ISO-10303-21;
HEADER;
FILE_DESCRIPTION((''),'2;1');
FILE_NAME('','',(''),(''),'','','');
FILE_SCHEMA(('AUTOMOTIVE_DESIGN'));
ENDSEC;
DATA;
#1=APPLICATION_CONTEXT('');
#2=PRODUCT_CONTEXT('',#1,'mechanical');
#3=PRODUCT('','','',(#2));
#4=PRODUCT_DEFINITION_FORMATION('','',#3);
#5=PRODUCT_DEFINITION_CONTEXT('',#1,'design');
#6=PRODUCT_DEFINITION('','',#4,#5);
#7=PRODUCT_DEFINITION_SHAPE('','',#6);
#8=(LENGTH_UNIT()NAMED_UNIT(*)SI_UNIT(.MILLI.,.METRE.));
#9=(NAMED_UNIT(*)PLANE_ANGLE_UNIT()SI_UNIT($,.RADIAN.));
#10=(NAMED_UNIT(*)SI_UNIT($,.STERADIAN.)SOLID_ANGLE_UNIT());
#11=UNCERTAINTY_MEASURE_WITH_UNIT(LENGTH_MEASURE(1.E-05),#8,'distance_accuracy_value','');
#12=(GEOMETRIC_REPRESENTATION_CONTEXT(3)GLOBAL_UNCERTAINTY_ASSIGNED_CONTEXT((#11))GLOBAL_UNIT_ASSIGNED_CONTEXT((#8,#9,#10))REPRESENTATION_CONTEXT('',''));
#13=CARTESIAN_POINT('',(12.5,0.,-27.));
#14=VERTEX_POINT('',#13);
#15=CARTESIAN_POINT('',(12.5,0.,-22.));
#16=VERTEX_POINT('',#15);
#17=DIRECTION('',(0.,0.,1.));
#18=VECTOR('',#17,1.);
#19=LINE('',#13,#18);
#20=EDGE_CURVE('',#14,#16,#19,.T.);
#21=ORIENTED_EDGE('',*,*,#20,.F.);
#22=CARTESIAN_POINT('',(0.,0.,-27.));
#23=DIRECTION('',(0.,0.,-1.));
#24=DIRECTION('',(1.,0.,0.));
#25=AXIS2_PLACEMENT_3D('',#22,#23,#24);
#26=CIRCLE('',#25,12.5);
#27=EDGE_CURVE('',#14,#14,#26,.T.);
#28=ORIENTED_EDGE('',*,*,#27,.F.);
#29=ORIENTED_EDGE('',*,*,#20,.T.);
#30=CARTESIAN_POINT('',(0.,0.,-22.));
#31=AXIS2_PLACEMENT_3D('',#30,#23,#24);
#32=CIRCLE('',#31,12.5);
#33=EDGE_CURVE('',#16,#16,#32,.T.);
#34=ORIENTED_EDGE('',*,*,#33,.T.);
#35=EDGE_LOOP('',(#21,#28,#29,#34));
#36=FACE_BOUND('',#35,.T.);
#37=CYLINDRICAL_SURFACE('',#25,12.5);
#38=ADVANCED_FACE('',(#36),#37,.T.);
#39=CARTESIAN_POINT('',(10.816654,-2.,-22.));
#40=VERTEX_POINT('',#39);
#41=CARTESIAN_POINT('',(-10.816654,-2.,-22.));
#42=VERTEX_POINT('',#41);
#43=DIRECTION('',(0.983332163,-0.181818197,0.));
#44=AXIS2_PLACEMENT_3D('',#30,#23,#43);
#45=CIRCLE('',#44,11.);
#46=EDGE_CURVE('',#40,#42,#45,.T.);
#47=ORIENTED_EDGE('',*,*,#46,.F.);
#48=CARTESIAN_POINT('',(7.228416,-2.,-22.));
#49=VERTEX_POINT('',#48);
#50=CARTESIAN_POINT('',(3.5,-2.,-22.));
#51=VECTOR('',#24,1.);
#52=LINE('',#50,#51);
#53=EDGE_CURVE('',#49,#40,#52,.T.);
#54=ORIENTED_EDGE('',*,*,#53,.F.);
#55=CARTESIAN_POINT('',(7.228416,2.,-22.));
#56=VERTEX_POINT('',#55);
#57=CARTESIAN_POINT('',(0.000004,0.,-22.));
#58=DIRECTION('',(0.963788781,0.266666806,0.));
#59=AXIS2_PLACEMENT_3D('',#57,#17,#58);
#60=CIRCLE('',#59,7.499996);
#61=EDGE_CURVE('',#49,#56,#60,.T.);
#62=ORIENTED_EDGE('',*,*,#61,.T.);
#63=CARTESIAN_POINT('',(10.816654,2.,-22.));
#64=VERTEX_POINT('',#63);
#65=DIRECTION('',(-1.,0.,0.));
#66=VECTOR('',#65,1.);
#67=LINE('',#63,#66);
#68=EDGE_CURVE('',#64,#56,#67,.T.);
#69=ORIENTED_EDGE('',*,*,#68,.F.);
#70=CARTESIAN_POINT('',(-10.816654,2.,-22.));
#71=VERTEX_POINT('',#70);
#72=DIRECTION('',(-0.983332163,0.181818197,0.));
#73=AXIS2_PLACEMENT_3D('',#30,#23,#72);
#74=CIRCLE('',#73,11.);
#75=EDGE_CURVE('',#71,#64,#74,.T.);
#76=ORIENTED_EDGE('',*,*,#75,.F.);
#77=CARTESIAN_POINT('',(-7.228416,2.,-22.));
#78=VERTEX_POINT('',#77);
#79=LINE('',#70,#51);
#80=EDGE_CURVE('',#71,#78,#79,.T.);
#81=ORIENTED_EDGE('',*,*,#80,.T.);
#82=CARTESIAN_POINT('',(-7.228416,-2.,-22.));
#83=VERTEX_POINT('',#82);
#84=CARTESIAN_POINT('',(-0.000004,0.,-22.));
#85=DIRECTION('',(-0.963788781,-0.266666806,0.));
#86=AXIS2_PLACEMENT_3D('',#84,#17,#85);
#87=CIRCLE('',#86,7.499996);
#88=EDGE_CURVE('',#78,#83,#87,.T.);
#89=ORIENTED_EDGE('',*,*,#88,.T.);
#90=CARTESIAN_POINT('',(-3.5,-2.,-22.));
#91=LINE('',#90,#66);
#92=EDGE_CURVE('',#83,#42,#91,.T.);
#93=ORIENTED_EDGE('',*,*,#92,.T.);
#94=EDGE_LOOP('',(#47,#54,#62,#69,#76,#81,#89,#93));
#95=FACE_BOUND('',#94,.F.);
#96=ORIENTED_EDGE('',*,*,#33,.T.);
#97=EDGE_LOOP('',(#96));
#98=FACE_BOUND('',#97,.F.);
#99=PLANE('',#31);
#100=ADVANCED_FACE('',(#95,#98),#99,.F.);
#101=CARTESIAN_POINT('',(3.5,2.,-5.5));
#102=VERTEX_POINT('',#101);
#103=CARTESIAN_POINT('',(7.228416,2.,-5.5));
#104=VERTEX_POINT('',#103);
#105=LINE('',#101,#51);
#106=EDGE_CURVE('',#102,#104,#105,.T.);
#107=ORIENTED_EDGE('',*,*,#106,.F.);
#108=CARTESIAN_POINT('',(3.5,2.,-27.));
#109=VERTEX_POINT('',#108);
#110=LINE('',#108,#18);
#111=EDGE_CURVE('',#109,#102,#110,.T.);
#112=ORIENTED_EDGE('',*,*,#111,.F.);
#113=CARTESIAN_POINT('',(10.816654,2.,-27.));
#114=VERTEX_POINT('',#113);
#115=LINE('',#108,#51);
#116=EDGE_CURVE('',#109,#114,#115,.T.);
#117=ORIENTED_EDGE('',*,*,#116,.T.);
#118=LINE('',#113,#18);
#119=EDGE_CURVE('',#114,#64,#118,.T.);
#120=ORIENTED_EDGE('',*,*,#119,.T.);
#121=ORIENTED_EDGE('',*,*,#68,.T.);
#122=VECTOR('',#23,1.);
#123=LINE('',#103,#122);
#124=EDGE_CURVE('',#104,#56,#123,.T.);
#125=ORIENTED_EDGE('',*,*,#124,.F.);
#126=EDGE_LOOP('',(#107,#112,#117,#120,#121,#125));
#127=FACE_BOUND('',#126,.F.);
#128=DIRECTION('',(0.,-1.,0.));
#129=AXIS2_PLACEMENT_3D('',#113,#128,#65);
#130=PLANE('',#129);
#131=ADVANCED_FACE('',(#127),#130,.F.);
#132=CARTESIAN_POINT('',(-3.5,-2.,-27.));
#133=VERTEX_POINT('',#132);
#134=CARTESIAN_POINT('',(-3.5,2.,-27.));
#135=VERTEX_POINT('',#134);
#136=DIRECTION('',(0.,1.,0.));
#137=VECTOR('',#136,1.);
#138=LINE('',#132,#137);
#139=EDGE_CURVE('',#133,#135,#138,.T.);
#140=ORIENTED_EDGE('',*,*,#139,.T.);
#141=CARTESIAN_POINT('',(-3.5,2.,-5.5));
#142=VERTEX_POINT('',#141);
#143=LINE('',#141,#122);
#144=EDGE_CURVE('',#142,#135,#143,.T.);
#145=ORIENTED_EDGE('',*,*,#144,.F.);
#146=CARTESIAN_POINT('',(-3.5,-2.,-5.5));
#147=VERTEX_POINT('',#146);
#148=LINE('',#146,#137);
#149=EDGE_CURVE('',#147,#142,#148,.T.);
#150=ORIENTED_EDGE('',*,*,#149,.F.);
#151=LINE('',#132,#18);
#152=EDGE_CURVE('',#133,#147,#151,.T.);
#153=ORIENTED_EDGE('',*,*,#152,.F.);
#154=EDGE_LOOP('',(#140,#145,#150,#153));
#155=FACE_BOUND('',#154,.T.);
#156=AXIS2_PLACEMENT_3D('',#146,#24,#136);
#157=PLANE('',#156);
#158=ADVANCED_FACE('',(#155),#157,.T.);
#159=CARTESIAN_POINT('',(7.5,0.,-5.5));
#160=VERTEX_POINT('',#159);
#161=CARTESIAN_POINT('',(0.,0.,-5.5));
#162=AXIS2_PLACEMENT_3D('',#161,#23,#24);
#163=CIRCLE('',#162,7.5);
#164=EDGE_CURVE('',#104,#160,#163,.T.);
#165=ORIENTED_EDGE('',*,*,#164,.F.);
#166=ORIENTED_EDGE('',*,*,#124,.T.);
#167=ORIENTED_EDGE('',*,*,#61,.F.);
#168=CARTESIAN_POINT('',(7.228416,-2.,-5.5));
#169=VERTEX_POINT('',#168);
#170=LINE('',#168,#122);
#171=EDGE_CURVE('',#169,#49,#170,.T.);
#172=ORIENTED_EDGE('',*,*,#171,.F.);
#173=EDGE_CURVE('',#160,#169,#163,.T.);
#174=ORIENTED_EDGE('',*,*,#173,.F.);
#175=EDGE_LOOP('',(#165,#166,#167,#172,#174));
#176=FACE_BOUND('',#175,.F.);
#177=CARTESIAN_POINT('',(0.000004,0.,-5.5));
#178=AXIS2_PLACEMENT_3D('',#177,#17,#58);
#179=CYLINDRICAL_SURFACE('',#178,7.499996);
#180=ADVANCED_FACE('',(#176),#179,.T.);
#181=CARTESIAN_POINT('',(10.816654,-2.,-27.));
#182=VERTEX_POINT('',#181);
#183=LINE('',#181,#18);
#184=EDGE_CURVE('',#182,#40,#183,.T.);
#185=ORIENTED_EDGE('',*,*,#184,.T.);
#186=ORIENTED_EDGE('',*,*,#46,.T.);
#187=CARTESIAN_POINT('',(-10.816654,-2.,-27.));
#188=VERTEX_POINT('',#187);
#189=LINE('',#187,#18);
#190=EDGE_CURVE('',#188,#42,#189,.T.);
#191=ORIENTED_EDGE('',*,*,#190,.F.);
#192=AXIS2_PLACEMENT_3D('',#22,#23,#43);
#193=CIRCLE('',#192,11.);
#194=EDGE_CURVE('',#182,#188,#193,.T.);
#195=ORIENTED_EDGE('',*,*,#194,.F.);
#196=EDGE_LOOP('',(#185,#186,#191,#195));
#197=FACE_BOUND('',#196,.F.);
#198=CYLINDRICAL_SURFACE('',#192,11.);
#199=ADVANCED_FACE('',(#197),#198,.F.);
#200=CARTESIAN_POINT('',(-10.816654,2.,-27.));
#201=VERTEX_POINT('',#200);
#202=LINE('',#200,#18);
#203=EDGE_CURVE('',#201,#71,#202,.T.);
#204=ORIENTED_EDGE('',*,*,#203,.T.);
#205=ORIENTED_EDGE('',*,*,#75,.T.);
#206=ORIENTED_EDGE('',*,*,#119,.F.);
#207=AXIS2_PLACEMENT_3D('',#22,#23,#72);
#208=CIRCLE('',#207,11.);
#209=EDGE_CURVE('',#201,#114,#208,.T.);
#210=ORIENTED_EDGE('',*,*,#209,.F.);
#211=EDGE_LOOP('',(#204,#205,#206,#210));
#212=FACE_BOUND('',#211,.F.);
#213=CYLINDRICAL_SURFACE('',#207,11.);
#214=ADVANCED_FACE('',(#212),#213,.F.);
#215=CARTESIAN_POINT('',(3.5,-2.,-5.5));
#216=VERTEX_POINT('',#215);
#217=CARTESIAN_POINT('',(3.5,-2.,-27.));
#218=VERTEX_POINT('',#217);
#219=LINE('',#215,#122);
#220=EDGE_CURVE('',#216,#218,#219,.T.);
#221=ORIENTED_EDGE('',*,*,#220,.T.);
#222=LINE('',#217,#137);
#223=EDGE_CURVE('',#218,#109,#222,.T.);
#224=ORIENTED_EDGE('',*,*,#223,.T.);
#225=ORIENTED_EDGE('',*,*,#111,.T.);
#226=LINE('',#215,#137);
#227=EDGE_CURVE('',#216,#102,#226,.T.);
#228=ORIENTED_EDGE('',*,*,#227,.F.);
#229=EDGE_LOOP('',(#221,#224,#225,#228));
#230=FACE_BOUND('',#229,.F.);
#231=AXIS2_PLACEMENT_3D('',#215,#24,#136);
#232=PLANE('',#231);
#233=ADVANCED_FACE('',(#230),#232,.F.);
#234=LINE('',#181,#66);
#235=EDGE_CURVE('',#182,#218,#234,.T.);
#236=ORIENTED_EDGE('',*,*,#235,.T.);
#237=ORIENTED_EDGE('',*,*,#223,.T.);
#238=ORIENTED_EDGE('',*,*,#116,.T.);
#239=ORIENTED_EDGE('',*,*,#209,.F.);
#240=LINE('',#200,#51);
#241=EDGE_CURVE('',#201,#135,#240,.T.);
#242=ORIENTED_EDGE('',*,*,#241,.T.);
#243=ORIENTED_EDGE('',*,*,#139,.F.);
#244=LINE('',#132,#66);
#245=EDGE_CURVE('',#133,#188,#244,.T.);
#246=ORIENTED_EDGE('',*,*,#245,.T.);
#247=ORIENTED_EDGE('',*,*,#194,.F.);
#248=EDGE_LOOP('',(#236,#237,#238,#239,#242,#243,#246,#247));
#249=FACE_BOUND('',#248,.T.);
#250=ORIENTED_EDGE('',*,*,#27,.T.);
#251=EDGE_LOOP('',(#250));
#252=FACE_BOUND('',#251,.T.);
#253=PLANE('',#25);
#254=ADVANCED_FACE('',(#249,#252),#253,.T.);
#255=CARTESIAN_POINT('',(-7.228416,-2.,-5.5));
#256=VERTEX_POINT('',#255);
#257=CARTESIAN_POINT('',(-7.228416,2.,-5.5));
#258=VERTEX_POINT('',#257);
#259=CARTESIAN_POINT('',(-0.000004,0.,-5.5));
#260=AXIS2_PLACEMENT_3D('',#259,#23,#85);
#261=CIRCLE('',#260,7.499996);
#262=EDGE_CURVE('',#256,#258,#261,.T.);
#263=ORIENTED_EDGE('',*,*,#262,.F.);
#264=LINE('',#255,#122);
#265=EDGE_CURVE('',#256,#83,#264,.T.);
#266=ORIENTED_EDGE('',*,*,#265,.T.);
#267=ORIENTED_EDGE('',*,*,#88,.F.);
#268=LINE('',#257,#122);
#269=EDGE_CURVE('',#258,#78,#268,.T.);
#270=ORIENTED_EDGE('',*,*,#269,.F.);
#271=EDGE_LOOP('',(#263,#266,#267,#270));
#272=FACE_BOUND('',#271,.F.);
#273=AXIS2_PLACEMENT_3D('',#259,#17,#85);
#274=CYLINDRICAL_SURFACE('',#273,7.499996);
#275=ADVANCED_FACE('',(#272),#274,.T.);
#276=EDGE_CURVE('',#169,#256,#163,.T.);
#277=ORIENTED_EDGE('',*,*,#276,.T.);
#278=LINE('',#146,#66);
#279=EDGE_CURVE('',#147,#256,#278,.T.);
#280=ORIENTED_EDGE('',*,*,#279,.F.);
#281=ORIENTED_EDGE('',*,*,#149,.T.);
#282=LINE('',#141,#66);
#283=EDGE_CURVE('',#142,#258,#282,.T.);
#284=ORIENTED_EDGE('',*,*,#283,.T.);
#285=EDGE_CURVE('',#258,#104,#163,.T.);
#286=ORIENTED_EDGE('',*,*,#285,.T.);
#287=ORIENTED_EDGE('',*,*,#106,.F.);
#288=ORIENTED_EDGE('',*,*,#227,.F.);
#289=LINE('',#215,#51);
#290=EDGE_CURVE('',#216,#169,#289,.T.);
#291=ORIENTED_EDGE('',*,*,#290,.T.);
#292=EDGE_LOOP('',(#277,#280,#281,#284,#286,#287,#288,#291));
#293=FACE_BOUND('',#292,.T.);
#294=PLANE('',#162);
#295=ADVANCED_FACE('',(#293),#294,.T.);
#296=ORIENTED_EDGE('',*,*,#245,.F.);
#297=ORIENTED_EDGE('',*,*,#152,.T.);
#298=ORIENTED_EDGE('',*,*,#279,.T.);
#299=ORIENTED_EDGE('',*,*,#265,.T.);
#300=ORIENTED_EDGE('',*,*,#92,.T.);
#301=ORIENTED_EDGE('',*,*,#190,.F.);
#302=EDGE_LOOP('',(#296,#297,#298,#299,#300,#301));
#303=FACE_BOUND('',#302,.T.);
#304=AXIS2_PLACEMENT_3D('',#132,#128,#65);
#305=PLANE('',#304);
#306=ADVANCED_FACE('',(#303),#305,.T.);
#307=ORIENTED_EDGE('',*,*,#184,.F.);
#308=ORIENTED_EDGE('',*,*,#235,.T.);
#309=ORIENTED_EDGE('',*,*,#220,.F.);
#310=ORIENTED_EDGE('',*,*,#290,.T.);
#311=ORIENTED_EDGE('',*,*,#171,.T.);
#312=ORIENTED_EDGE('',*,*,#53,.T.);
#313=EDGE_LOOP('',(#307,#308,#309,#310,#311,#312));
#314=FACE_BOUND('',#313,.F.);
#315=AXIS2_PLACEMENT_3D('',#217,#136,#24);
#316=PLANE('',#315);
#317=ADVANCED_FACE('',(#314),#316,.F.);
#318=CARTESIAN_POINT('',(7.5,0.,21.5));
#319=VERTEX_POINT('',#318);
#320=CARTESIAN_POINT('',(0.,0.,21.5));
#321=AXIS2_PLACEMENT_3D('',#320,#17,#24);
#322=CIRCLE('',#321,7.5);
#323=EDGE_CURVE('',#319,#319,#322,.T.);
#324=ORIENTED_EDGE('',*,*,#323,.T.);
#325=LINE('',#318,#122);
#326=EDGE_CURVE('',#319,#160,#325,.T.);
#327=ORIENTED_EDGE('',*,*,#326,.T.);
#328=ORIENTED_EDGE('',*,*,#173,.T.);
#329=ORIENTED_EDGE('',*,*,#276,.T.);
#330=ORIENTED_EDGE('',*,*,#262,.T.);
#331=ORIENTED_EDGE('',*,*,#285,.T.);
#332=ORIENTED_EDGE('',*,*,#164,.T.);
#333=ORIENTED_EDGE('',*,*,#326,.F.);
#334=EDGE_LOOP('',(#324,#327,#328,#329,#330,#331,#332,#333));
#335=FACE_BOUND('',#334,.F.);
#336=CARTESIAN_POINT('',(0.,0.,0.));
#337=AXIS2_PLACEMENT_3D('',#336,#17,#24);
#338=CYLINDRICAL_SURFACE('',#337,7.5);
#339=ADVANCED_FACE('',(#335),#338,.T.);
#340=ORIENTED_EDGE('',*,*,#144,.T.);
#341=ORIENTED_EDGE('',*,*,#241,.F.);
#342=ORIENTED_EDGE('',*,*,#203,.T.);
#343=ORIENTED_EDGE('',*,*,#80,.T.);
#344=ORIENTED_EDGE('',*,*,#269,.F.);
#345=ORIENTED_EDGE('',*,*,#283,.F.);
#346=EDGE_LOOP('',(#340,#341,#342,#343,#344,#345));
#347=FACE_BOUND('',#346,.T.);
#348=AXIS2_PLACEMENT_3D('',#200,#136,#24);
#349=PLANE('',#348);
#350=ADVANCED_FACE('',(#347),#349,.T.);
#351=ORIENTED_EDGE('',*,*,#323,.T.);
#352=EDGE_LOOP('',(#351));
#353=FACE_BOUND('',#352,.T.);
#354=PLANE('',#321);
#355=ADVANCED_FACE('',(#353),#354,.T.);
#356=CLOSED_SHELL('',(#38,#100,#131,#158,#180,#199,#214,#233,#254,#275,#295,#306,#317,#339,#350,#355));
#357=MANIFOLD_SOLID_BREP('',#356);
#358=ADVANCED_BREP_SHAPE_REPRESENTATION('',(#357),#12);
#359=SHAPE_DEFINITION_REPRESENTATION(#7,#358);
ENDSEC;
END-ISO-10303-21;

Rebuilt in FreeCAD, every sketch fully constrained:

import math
import FreeCAD as App
import Part
import Sketcher
from FreeCAD import Vector

doc = App.newDocument("Part")
body = doc.addObject("PartDesign::Body", "Body")

# Sketch on XY plane
sketch1 = body.newObject("Sketcher::SketchObject", "Sketch")
sketch1.AttachmentSupport = (doc.getObject("XY_Plane"), [""])
sketch1.MapMode = "FlatFace"
sketch1.addGeometry(Part.Circle(Vector(0, 0, 0), Vector(0, 0, 1), 8), False)
sketch1.addConstraint([
    Sketcher.Constraint("Coincident", 0, 3, -1, 1),
    Sketcher.Constraint("Diameter", 0, 15.0),
])
pad1 = body.newObject("PartDesign::Pad", "Pad")
pad1.Profile = sketch1
pad1.Length = 9

# Sketch on XY plane
sketch2 = body.newObject("Sketcher::SketchObject", "Sketch001")
sketch2.AttachmentSupport = (doc.getObject("XY_Plane"), [""])
sketch2.MapMode = "FlatFace"
sketch2.AttachmentOffset = App.Placement(Vector(0, 0, 9), App.Rotation())
sketch2.addGeometry(Part.Circle(Vector(0, 0, 0), Vector(0, 0, 1), 8), False)
sketch2.addConstraint([
    Sketcher.Constraint("Coincident", 0, 3, -1, 1),
    Sketcher.Constraint("Diameter", 0, 15.0),
])
pad2 = body.newObject("PartDesign::Pad", "Pad001")
pad2.Profile = sketch2
pad2.Length = 2

# Sketch on XY plane
sketch3 = body.newObject("Sketcher::SketchObject", "Sketch002")
sketch3.AttachmentSupport = (doc.getObject("XY_Plane"), [""])
sketch3.MapMode = "FlatFace"
sketch3.AttachmentOffset = App.Placement(Vector(0, 0, 11), App.Rotation())
sketch3.addGeometry(Part.Circle(Vector(0, 0, 0), Vector(0, 0, 1), 8), False)
sketch3.addConstraint([
    Sketcher.Constraint("Coincident", 0, 3, -1, 1),
    Sketcher.Constraint("Diameter", 0, 15.0),
])
pad3 = body.newObject("PartDesign::Pad", "Pad002")
pad3.Profile = sketch3
pad3.Length = 9

# Sketch on XY plane
sketch4 = body.newObject("Sketcher::SketchObject", "Sketch003")
sketch4.AttachmentSupport = (doc.getObject("XY_Plane"), [""])
sketch4.MapMode = "FlatFace"
sketch4.AttachmentOffset = App.Placement(Vector(0, 0, 20), App.Rotation())
sketch4.addGeometry(Part.Circle(Vector(0, 0, 0), Vector(0, 0, 1), 8), False)
sketch4.addConstraint([
    Sketcher.Constraint("Coincident", 0, 3, -1, 1),
    Sketcher.Constraint("Diameter", 0, 15.0),
])
pad4 = body.newObject("PartDesign::Pad", "Pad003")
pad4.Profile = sketch4
pad4.Length = 1.5

# Sketch on XY plane
sketch5 = body.newObject("Sketcher::SketchObject", "Sketch004")
sketch5.AttachmentSupport = (doc.getObject("XY_Plane"), [""])
sketch5.MapMode = "FlatFace"
sketch5.addGeometry(Part.Circle(Vector(0, 0, 0), Vector(0, 0, 1), 8), False)
sketch5.addConstraint([
    Sketcher.Constraint("Coincident", 0, 3, -1, 1),
    Sketcher.Constraint("Diameter", 0, 15.0),
])
pad5 = body.newObject("PartDesign::Pad", "Pad004")
pad5.Profile = sketch5
pad5.Length = 5.5
pad5.Reversed = True

# Sketch on XY plane
sketch6 = body.newObject("Sketcher::SketchObject", "Sketch005")
sketch6.AttachmentSupport = (doc.getObject("XY_Plane"), [""])
sketch6.MapMode = "FlatFace"
sketch6.AttachmentOffset = App.Placement(Vector(0, 0, -5.5), App.Rotation())
sketch6.addGeometry([
    Part.LineSegment(Vector(3.5, -2, 0), Vector(3.5, 2, 0)),  # 0
    Part.LineSegment(Vector(3.5, 2, 0), Vector(7.2, 2, 0)),  # 1
    Part.ArcOfCircle(Part.Circle(Vector(0, 0, 0), Vector(0, 0, 1), 7.5), math.radians(-15), math.radians(15)),  # 2
    Part.LineSegment(Vector(7.2, -2, 0), Vector(3.5, -2, 0)),  # 3
    Part.LineSegment(Vector(-3.5, 2, 0), Vector(-3.5, -2, 0)),  # 4
    Part.LineSegment(Vector(-3.5, -2, 0), Vector(-7.2, -2, 0)),  # 5
    Part.ArcOfCircle(Part.Circle(Vector(0, 0, 0), Vector(0, 0, 1), 7.5), math.radians(165), math.radians(195)),  # 6
    Part.LineSegment(Vector(-7.2, 2, 0), Vector(-3.5, 2, 0)),  # 7
], False)
sketch6.addConstraint([
    Sketcher.Constraint("Coincident", 0, 2, 1, 1),
    Sketcher.Constraint("Coincident", 1, 2, 2, 2),
    Sketcher.Constraint("Coincident", 2, 1, 3, 1),
    Sketcher.Constraint("Coincident", 3, 2, 0, 1),
    Sketcher.Constraint("Coincident", 4, 2, 5, 1),
    Sketcher.Constraint("Coincident", 5, 2, 6, 2),
    Sketcher.Constraint("Coincident", 6, 1, 7, 1),
    Sketcher.Constraint("Coincident", 7, 2, 4, 1),
    Sketcher.Constraint("Vertical", 0),
    Sketcher.Constraint("Horizontal", 1),
    Sketcher.Constraint("Horizontal", 3),
    Sketcher.Constraint("Vertical", 4),
    Sketcher.Constraint("Horizontal", 5),
    Sketcher.Constraint("Horizontal", 7),
    Sketcher.Constraint("Coincident", 2, 3, -1, 1),
    Sketcher.Constraint("Coincident", 6, 3, -1, 1),
    Sketcher.Constraint("Equal", 2, 6),
    Sketcher.Constraint("Symmetric", 0, 2, 4, 2, -1, 1),
    Sketcher.Constraint("Horizontal", 3, 2, 4, 2),
    Sketcher.Constraint("Horizontal", 1, 2, 6, 1),
    Sketcher.Constraint("DistanceY", 0, 1, 0, 2, 4.0),
    Sketcher.Constraint("DistanceX", 4, 2, 3, 2, 7.0),
    Sketcher.Constraint("Radius", 2, 7.499996),
])
pad6 = body.newObject("PartDesign::Pad", "Pad005")
pad6.Profile = sketch6
pad6.Length = 21.5
pad6.Reversed = True

# Sketch on XY plane
sketch7 = body.newObject("Sketcher::SketchObject", "Sketch006")
sketch7.AttachmentSupport = (doc.getObject("XY_Plane"), [""])
sketch7.MapMode = "FlatFace"
sketch7.AttachmentOffset = App.Placement(Vector(0, 0, -27), App.Rotation())
sketch7.addGeometry([
    Part.Circle(Vector(0, 0, 0), Vector(0, 0, 1), 12.5),  # 0
    Part.ArcOfCircle(Part.Circle(Vector(0, 0, 0), Vector(0, 0, 1), 11), math.radians(-170), math.radians(-10)),  # 1
    Part.LineSegment(Vector(10.8, -2, 0), Vector(3.5, -2, 0)),  # 2
    Part.LineSegment(Vector(3.5, -2, 0), Vector(3.5, 2, 0)),  # 3
    Part.LineSegment(Vector(3.5, 2, 0), Vector(10.8, 2, 0)),  # 4
    Part.ArcOfCircle(Part.Circle(Vector(0, 0, 0), Vector(0, 0, 1), 11), math.radians(10), math.radians(170)),  # 5
    Part.LineSegment(Vector(-10.8, 2, 0), Vector(-3.5, 2, 0)),  # 6
    Part.LineSegment(Vector(-3.5, 2, 0), Vector(-3.5, -2, 0)),  # 7
    Part.LineSegment(Vector(-3.5, -2, 0), Vector(-10.8, -2, 0)),  # 8
], False)
sketch7.addConstraint([
    Sketcher.Constraint("Coincident", 1, 2, 2, 1),
    Sketcher.Constraint("Coincident", 2, 2, 3, 1),
    Sketcher.Constraint("Coincident", 3, 2, 4, 1),
    Sketcher.Constraint("Coincident", 4, 2, 5, 1),
    Sketcher.Constraint("Coincident", 5, 2, 6, 1),
    Sketcher.Constraint("Coincident", 6, 2, 7, 1),
    Sketcher.Constraint("Coincident", 7, 2, 8, 1),
    Sketcher.Constraint("Coincident", 8, 2, 1, 1),
    Sketcher.Constraint("Horizontal", 2),
    Sketcher.Constraint("Vertical", 3),
    Sketcher.Constraint("Horizontal", 4),
    Sketcher.Constraint("Horizontal", 6),
    Sketcher.Constraint("Vertical", 7),
    Sketcher.Constraint("Horizontal", 8),
    Sketcher.Constraint("Coincident", 0, 3, -1, 1),
    Sketcher.Constraint("Coincident", 1, 3, -1, 1),
    Sketcher.Constraint("Coincident", 5, 3, -1, 1),
    Sketcher.Constraint("Equal", 1, 5),
    Sketcher.Constraint("Symmetric", 2, 2, 6, 2, -1, 1),
    Sketcher.Constraint("Horizontal", 4, 2, 5, 2),
    Sketcher.Constraint("Horizontal", 2, 2, 7, 2),
    Sketcher.Constraint("Diameter", 0, 25.0),
    Sketcher.Constraint("Radius", 1, 11.0),
    Sketcher.Constraint("DistanceY", 3, 1, 3, 2, 4.0),
    Sketcher.Constraint("DistanceX", 6, 2, 3, 2, 7.0),
])
pad7 = body.newObject("PartDesign::Pad", "Pad006")
pad7.Profile = sketch7
pad7.Length = 5

doc.recompute()
